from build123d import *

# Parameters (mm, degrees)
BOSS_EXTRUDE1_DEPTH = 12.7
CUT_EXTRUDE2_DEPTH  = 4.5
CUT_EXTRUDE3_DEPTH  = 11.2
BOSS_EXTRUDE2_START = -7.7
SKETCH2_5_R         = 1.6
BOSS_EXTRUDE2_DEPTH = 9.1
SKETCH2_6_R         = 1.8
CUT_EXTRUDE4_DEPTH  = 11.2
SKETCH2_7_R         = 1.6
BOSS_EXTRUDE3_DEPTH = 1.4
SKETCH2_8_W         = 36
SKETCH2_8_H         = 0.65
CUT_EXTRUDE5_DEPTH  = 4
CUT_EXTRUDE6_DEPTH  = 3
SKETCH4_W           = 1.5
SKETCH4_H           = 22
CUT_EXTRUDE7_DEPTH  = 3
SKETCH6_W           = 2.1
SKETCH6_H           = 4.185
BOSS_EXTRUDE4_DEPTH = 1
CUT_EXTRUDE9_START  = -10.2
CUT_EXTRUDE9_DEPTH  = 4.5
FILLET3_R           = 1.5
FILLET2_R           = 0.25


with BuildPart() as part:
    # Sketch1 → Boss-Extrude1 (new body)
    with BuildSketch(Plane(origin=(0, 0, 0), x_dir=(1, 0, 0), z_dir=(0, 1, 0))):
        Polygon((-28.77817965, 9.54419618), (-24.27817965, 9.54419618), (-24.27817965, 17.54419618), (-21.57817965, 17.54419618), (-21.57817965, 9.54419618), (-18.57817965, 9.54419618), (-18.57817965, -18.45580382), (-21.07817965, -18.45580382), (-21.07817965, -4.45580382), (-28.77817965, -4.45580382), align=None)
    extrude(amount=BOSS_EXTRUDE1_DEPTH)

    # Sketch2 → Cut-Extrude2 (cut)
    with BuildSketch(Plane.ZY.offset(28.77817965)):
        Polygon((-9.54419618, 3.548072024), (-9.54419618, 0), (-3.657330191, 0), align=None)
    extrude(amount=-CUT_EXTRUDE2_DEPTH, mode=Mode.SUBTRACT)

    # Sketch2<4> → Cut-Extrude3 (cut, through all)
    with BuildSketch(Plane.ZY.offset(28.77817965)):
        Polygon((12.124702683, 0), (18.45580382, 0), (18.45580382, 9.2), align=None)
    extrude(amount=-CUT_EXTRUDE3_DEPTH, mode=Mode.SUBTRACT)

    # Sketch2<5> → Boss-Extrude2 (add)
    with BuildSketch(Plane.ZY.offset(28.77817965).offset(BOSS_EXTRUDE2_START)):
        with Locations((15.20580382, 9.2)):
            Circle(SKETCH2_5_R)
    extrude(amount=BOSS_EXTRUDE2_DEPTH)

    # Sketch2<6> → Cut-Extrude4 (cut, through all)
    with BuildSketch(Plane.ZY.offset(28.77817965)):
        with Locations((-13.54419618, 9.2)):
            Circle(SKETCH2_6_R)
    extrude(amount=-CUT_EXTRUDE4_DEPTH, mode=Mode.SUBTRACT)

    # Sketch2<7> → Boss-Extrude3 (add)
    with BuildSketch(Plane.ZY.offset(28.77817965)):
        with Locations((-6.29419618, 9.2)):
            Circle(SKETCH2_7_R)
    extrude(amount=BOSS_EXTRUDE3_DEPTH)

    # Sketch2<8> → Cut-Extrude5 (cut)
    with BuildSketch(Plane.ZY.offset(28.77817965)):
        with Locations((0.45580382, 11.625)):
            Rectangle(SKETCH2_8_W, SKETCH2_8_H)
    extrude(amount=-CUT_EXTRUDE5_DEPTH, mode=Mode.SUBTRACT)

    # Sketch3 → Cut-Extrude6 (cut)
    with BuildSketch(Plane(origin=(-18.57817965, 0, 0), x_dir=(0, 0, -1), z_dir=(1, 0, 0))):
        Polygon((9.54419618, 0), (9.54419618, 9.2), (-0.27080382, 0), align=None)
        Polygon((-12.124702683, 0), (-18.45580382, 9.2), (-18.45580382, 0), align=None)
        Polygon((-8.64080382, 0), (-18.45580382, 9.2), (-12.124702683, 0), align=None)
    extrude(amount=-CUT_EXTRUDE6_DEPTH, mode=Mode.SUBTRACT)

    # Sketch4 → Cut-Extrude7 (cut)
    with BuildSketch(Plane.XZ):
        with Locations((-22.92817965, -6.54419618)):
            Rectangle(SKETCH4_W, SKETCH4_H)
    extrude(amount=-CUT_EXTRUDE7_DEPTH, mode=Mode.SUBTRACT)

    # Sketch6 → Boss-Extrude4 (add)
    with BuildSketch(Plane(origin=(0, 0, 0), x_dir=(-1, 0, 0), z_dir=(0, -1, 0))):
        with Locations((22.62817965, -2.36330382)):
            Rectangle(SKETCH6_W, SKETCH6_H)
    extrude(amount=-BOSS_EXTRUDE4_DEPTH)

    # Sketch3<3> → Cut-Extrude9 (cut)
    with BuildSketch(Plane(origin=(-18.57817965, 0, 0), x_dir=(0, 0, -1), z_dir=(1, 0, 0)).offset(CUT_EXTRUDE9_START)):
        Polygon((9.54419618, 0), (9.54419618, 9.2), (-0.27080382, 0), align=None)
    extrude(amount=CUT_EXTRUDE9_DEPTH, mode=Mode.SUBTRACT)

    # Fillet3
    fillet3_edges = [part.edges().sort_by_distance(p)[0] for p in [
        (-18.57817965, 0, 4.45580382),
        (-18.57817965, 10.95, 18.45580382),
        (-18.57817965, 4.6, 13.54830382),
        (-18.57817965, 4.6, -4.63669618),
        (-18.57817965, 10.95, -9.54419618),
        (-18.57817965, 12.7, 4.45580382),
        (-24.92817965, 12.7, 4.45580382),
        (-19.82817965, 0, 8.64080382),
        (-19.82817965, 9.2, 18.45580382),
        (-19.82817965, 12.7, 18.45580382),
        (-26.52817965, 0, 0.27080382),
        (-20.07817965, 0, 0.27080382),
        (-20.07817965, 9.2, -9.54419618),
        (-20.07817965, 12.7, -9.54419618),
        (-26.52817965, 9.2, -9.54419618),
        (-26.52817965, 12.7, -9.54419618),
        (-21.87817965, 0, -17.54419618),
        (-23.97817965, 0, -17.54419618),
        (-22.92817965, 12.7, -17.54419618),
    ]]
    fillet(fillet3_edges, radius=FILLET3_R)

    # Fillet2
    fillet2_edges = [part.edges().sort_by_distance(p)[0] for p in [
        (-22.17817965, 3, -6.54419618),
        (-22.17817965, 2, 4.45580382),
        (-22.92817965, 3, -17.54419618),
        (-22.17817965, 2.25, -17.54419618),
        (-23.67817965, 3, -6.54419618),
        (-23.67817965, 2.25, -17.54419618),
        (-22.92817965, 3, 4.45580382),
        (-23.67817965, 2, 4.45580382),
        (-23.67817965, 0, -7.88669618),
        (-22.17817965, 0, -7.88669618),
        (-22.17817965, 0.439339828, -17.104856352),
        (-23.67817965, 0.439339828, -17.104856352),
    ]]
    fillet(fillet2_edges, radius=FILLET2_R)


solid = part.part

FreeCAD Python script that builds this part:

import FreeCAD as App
import Part
import Sketcher
from FreeCAD import Vector


def edges_at(feature, points):
    """Names of the edges that pass closest to the given points."""
    edges = feature.Shape.Edges
    near = lambda p: min(range(len(edges)), key=lambda i: edges[i].distToShape(Part.Vertex(*p))[0])
    return sorted({f"Edge{near(p) + 1}" for p in points})

doc = App.newDocument("Part")
body = doc.addObject("PartDesign::Body", "Body")

sketch1 = doc.addObject("Sketcher::SketchObject", "Sketch")
body.addObject(sketch1)
sketch1.AttachmentSupport = (doc.XZ_Plane, [""])
sketch1.MapMode = "FlatFace"
sketch1.addGeometry(Part.LineSegment(Vector(-24.3, -9.5, 0), Vector(-28.8, -9.5, 0)), False)
sketch1.addGeometry(Part.LineSegment(Vector(-28.8, -9.5, 0), Vector(-28.8, 4.5, 0)), False)
sketch1.addGeometry(Part.LineSegment(Vector(-28.8, 4.5, 0), Vector(-21.1, 4.5, 0)), False)
sketch1.addGeometry(Part.LineSegment(Vector(-21.1, 4.5, 0), Vector(-21.1, 18.5, 0)), False)
sketch1.addGeometry(Part.LineSegment(Vector(-21.1, 18.5, 0), Vector(-18.6, 18.5, 0)), False)
sketch1.addGeometry(Part.LineSegment(Vector(-18.6, 18.5, 0), Vector(-18.6, -9.5, 0)), False)
sketch1.addGeometry(Part.LineSegment(Vector(-18.6, -9.5, 0), Vector(-21.6, -9.5, 0)), False)
sketch1.addGeometry(Part.LineSegment(Vector(-21.6, -9.5, 0), Vector(-21.6, -17.5, 0)), False)
sketch1.addGeometry(Part.LineSegment(Vector(-21.6, -17.5, 0), Vector(-24.3, -17.5, 0)), False)
sketch1.addGeometry(Part.LineSegment(Vector(-24.3, -17.5, 0), Vector(-24.3, -9.5, 0)), False)
sketch1.addConstraint(Sketcher.Constraint("Coincident", 0, 2, 1, 1))
sketch1.addConstraint(Sketcher.Constraint("Coincident", 1, 2, 2, 1))
sketch1.addConstraint(Sketcher.Constraint("Coincident", 2, 2, 3, 1))
sketch1.addConstraint(Sketcher.Constraint("Coincident", 3, 2, 4, 1))
sketch1.addConstraint(Sketcher.Constraint("Coincident", 4, 2, 5, 1))
sketch1.addConstraint(Sketcher.Constraint("Coincident", 5, 2, 6, 1))
sketch1.addConstraint(Sketcher.Constraint("Coincident", 6, 2, 7, 1))
sketch1.addConstraint(Sketcher.Constraint("Coincident", 7, 2, 8, 1))
sketch1.addConstraint(Sketcher.Constraint("Coincident", 8, 2, 9, 1))
sketch1.addConstraint(Sketcher.Constraint("Coincident", 9, 2, 0, 1))
sketch1.addConstraint(Sketcher.Constraint("Horizontal", 0))
sketch1.addConstraint(Sketcher.Constraint("Vertical", 1))
sketch1.addConstraint(Sketcher.Constraint("Horizontal", 2))
sketch1.addConstraint(Sketcher.Constraint("Vertical", 3))
sketch1.addConstraint(Sketcher.Constraint("Horizontal", 4))
sketch1.addConstraint(Sketcher.Constraint("Vertical", 5))
sketch1.addConstraint(Sketcher.Constraint("Horizontal", 6))
sketch1.addConstraint(Sketcher.Constraint("Vertical", 7))
sketch1.addConstraint(Sketcher.Constraint("Horizontal", 8))
sketch1.addConstraint(Sketcher.Constraint("Vertical", 9))
sketch1.addConstraint(Sketcher.Constraint("Horizontal", 0, 2, 5, 2))
sketch1.addConstraint(Sketcher.Constraint("Equal", 1, 3))
sketch1.addConstraint(Sketcher.Constraint("DistanceX", 6, 2, 6, 1, 3.0))
sketch1.addConstraint(Sketcher.Constraint("DistanceY", 1, 1, 1, 2, 14.0))
sketch1.addConstraint(Sketcher.Constraint("DistanceY", 7, 2, 7, 1, 8.0))
sketch1.addConstraint(Sketcher.Constraint("DistanceX", 0, 2, 0, 1, 4.5))
sketch1.addConstraint(Sketcher.Constraint("DistanceX", 2, 1, 2, 2, 7.7))
sketch1.addConstraint(Sketcher.Constraint("DistanceX", 4, 1, 4, 2, 2.5))
sketch1.addConstraint(Sketcher.Constraint("DistanceX", 0, 2, -1, 1, 28.77818))
sketch1.addConstraint(Sketcher.Constraint("DistanceY", 0, 2, -1, 1, 9.544196))
pad1 = doc.addObject("PartDesign::Pad", "Pad")
body.addObject(pad1)
pad1.Profile = sketch1
pad1.Length = 12.7
pad1.Reversed = True

sketch2 = doc.addObject("Sketcher::SketchObject", "Sketch001")
body.addObject(sketch2)
sketch2.AttachmentSupport = (doc.YZ_Plane, [""])
sketch2.MapMode = "FlatFace"
sketch2.AttachmentOffset = App.Placement(Vector(0, 0, -28.77818), App.Rotation())
sketch2.addGeometry(Part.LineSegment(Vector(3.5, -9.5, 0), Vector(0, -9.5, 0)), False)
sketch2.addGeometry(Part.LineSegment(Vector(0, -9.5, 0), Vector(0, -3.7, 0)), False)
sketch2.addGeometry(Part.LineSegment(Vector(0, -3.7, 0), Vector(3.5, -9.5, 0)), False)
sketch2.addConstraint(Sketcher.Constraint("Coincident", 0, 2, 1, 1))
sketch2.addConstraint(Sketcher.Constraint("Coincident", 1, 2, 2, 1))
sketch2.addConstraint(Sketcher.Constraint("Coincident", 2, 2, 0, 1))
sketch2.addConstraint(Sketcher.Constraint("Horizontal", 0))
sketch2.addConstraint(Sketcher.Constraint("Vertical", 1))
sketch2.addConstraint(Sketcher.Constraint("PointOnObject", 0, 2, -2))
sketch2.addConstraint(Sketcher.Constraint("DistanceX", 0, 2, 0, 1, 3.548072))
sketch2.addConstraint(Sketcher.Constraint("DistanceY", 1, 1, 1, 2, 5.886866))
sketch2.addConstraint(Sketcher.Constraint("DistanceY", 1, 2, -1, 1, 3.65733))
pocket1 = doc.addObject("PartDesign::Pocket", "Pocket")
body.addObject(pocket1)
pocket1.Profile = sketch2
pocket1.Length = 4.5
pocket1.Reversed = True

sketch3 = doc.addObject("Sketcher::SketchObject", "Sketch002")
body.addObject(sketch3)
sketch3.AttachmentSupport = (doc.YZ_Plane, [""])
sketch3.MapMode = "FlatFace"
sketch3.AttachmentOffset = App.Placement(Vector(0, 0, -28.77818), App.Rotation())
sketch3.addGeometry(Part.LineSegment(Vector(0, 12, 0), Vector(0, 18, 0)), False)
sketch3.addGeometry(Part.LineSegment(Vector(0, 18, 0), Vector(9, 18, 0)), False)
sketch3.addGeometry(Part.LineSegment(Vector(9, 18, 0), Vector(0, 12, 0)), False)
sketch3.addConstraint(Sketcher.Constraint("Coincident", 0, 2, 1, 1))
sketch3.addConstraint(Sketcher.Constraint("Coincident", 1, 2, 2, 1))
sketch3.addConstraint(Sketcher.Constraint("Coincident", 2, 2, 0, 1))
sketch3.addConstraint(Sketcher.Constraint("Vertical", 0))
sketch3.addConstraint(Sketcher.Constraint("Horizontal", 1))
sketch3.addConstraint(Sketcher.Constraint("PointOnObject", 0, 2, -2))
sketch3.addConstraint(Sketcher.Constraint("DistanceX", 1, 1, 1, 2, 9.2))
sketch3.addConstraint(Sketcher.Constraint("DistanceY", 0, 1, 0, 2, 6.331101))
sketch3.addConstraint(Sketcher.Constraint("DistanceY", -1, 1, 0, 2, 18.455804))
pocket2 = doc.addObject("PartDesign::Pocket", "Pocket001")
body.addObject(pocket2)
pocket2.Profile = sketch3
pocket2.Type = "ThroughAll"
pocket2.Reversed = True

sketch4 = doc.addObject("Sketcher::SketchObject", "Sketch003")
body.addObject(sketch4)
sketch4.AttachmentSupport = (doc.YZ_Plane, [""])
sketch4.MapMode = "FlatFace"
sketch4.AttachmentOffset = App.Placement(Vector(0, 0, -21.07818), App.Rotation())
sketch4.addGeometry(Part.Circle(Vector(9.2, 15.2, 0), Vector(0, 0, 1), 1.6), False)
sketch4.addConstraint(Sketcher.Constraint("Diameter", 0, 3.2))
sketch4.addConstraint(Sketcher.Constraint("DistanceX", -1, 1, 0, 3, 9.2))
sketch4.addConstraint(Sketcher.Constraint("DistanceY", -1, 1, 0, 3, 15.205804))
pad2 = doc.addObject("PartDesign::Pad", "Pad001")
body.addObject(pad2)
pad2.Profile = sketch4
pad2.Length = 9.1
pad2.Reversed = True

sketch5 = doc.addObject("Sketcher::SketchObject", "Sketch004")
body.addObject(sketch5)
sketch5.AttachmentSupport = (doc.YZ_Plane, [""])
sketch5.MapMode = "FlatFace"
sketch5.AttachmentOffset = App.Placement(Vector(0, 0, -28.77818), App.Rotation())
sketch5.addGeometry(Part.Circle(Vector(9.2, -13.5, 0), Vector(0, 0, 1), 1.8), False)
sketch5.addConstraint(Sketcher.Constraint("Diameter", 0, 3.6))
sketch5.addConstraint(Sketcher.Constraint("DistanceX", -1, 1, 0, 3, 9.2))
sketch5.addConstraint(Sketcher.Constraint("DistanceY", 0, 3, -1, 1, 13.544196))
pocket3 = doc.addObject("PartDesign::Pocket", "Pocket002")
body.addObject(pocket3)
pocket3.Profile = sketch5
pocket3.Type = "ThroughAll"
pocket3.Reversed = True

sketch6 = doc.addObject("Sketcher::SketchObject", "Sketch005")
body.addObject(sketch6)
sketch6.AttachmentSupport = (doc.YZ_Plane, [""])
sketch6.MapMode = "FlatFace"
sketch6.AttachmentOffset = App.Placement(Vector(0, 0, -28.77818), App.Rotation())
sketch6.addGeometry(Part.Circle(Vector(9.2, -6.3, 0), Vector(0, 0, 1), 1.6), False)
sketch6.addConstraint(Sketcher.Constraint("Diameter", 0, 3.2))
sketch6.addConstraint(Sketcher.Constraint("DistanceX", -1, 1, 0, 3, 9.2))
sketch6.addConstraint(Sketcher.Constraint("DistanceY", 0, 3, -1, 1, 6.294196))
pad3 = doc.addObject("PartDesign::Pad", "Pad002")
body.addObject(pad3)
pad3.Profile = sketch6
pad3.Length = 1.4
pad3.Reversed = True

sketch7 = doc.addObject("Sketcher::SketchObject", "Sketch006")
body.addObject(sketch7)
sketch7.AttachmentSupport = (doc.YZ_Plane, [""])
sketch7.MapMode = "FlatFace"
sketch7.AttachmentOffset = App.Placement(Vector(0, 0, -28.77818), App.Rotation())
sketch7.addGeometry(Part.LineSegment(Vector(11.9, -17.5, 0), Vector(11.3, -17.5, 0)), False)
sketch7.addGeometry(Part.LineSegment(Vector(11.3, -17.5, 0), Vector(11.3, 18.5, 0)), False)
sketch7.addGeometry(Part.LineSegment(Vector(11.3, 18.5, 0), Vector(11.9, 18.5, 0)), False)
sketch7.addGeometry(Part.LineSegment(Vector(11.9, 18.5, 0), Vector(11.9, -17.5, 0)), False)
sketch7.addConstraint(Sketcher.Constraint("Coincident", 0, 2, 1, 1))
sketch7.addConstraint(Sketcher.Constraint("Coincident", 1, 2, 2, 1))
sketch7.addConstraint(Sketcher.Constraint("Coincident", 2, 2, 3, 1))
sketch7.addConstraint(Sketcher.Constraint("Coincident", 3, 2, 0, 1))
sketch7.addConstraint(Sketcher.Constraint("Horizontal", 0))
sketch7.addConstraint(Sketcher.Constraint("Vertical", 1))
sketch7.addConstraint(Sketcher.Constraint("Horizontal", 2))
sketch7.addConstraint(Sketcher.Constraint("Vertical", 3))
sketch7.addConstraint(Sketcher.Constraint("DistanceY", 1, 1, 1, 2, 36.0))
sketch7.addConstraint(Sketcher.Constraint("DistanceX", 0, 2, 0, 1, 0.65))
sketch7.addConstraint(Sketcher.Constraint("DistanceX", -1, 1, 0, 2, 11.3))
sketch7.addConstraint(Sketcher.Constraint("DistanceY", 0, 2, -1, 1, 17.544196))
pocket4 = doc.addObject("PartDesign::Pocket", "Pocket003")
body.addObject(pocket4)
pocket4.Profile = sketch7
pocket4.Length = 4
pocket4.Reversed = True

sketch8 = doc.addObject("Sketcher::SketchObject", "Sketch007")
body.addObject(sketch8)
sketch8.AttachmentSupport = (doc.YZ_Plane, [""])
sketch8.MapMode = "FlatFace"
sketch8.AttachmentOffset = App.Placement(Vector(0, 0, -18.57818), App.Rotation())
sketch8.addGeometry(Part.LineSegment(Vector(0, -10, 0), Vector(9, -10, 0)), False)
sketch8.addGeometry(Part.LineSegment(Vector(9, -10, 0), Vector(0, 0, 0)), False)
sketch8.addGeometry(Part.LineSegment(Vector(0, 0, 0), Vector(0, -10, 0)), False)
sketch8.addGeometry(Part.LineSegment(Vector(9, 18, 0), Vector(0, 18, 0)), False)
sketch8.addGeometry(Part.LineSegment(Vector(0, 18, 0), Vector(0, 9, 0)), False)
sketch8.addGeometry(Part.LineSegment(Vector(0, 9, 0), Vector(9, 18, 0)), False)
sketch8.addConstraint(Sketcher.Constraint("Coincident", 0, 2, 1, 1))
sketch8.addConstraint(Sketcher.Constraint("Coincident", 1, 2, 2, 1))
sketch8.addConstraint(Sketcher.Constraint("Coincident", 2, 2, 0, 1))
sketch8.addConstraint(Sketcher.Constraint("Coincident", 3, 2, 4, 1))
sketch8.addConstraint(Sketcher.Constraint("Coincident", 4, 2, 5, 1))
sketch8.addConstraint(Sketcher.Constraint("Coincident", 5, 2, 3, 1))
sketch8.addConstraint(Sketcher.Constraint("Horizontal", 0))
sketch8.addConstraint(Sketcher.Constraint("Vertical", 2))
sketch8.addConstraint(Sketcher.Constraint("Horizontal", 3))
sketch8.addConstraint(Sketcher.Constraint("Vertical", 4))
sketch8.addConstraint(Sketcher.Constraint("PointOnObject", 1, 2, -2))
sketch8.addConstraint(Sketcher.Constraint("PointOnObject", 3, 2, -2))
sketch8.addConstraint(Sketcher.Constraint("Vertical", 0, 2, 5, 2))
sketch8.addConstraint(Sketcher.Constraint("Equal", 2, 4))
sketch8.addConstraint(Sketcher.Constraint("DistanceX", 0, 1, 0, 2, 9.2))
sketch8.addConstraint(Sketcher.Constraint("DistanceY", 2, 2, 3, 2, 28.0))
sketch8.addConstraint(Sketcher.Constraint("DistanceY", 2, 2, 2, 1, 9.815))
sketch8.addConstraint(Sketcher.Constraint("DistanceY", 0, 2, -1, 1, 9.544196))
pocket5 = doc.addObject("PartDesign::Pocket", "Pocket004")
body.addObject(pocket5)
pocket5.Profile = sketch8
pocket5.Length = 3

sketch9 = doc.addObject("Sketcher::SketchObject", "Sketch008")
body.addObject(sketch9)
sketch9.AttachmentSupport = (doc.XZ_Plane, [""])
sketch9.MapMode = "FlatFace"
sketch9.addGeometry(Part.LineSegment(Vector(-23.7, 4.5, 0), Vector(-23.7, -17.5, 0)), False)
sketch9.addGeometry(Part.LineSegment(Vector(-23.7, -17.5, 0), Vector(-22.2, -17.5, 0)), False)
sketch9.addGeometry(Part.LineSegment(Vector(-22.2, -17.5, 0), Vector(-22.2, 4.5, 0)), False)
sketch9.addGeometry(Part.LineSegment(Vector(-22.2, 4.5, 0), Vector(-23.7, 4.5, 0)), False)
sketch9.addConstraint(Sketcher.Constraint("Coincident", 0, 2, 1, 1))
sketch9.addConstraint(Sketcher.Constraint("Coincident", 1, 2, 2, 1))
sketch9.addConstraint(Sketcher.Constraint("Coincident", 2, 2, 3, 1))
sketch9.addConstraint(Sketcher.Constraint("Coincident", 3, 2, 0, 1))
sketch9.addConstraint(Sketcher.Constraint("Vertical", 0))
sketch9.addConstraint(Sketcher.Constraint("Horizontal", 1))
sketch9.addConstraint(Sketcher.Constraint("Vertical", 2))
sketch9.addConstraint(Sketcher.Constraint("Horizontal", 3))
sketch9.addConstraint(Sketcher.Constraint("DistanceY", 0, 2, 0, 1, 22.0))
sketch9.addConstraint(Sketcher.Constraint("DistanceX", 1, 1, 1, 2, 1.5))
sketch9.addConstraint(Sketcher.Constraint("DistanceX", 0, 2, -1, 1, 23.67818))
sketch9.addConstraint(Sketcher.Constraint("DistanceY", 0, 2, -1, 1, 17.544196))
pocket6 = doc.addObject("PartDesign::Pocket", "Pocket005")
body.addObject(pocket6)
pocket6.Profile = sketch9
pocket6.Length = 3

sketch10 = doc.addObject("Sketcher::SketchObject", "Sketch009")
body.addObject(sketch10)
sketch10.AttachmentSupport = (doc.XZ_Plane, [""])
sketch10.MapMode = "FlatFace"
sketch10.addGeometry(Part.LineSegment(Vector(-21.6, 0.3, 0), Vector(-21.6, 4.5, 0)), False)
sketch10.addGeometry(Part.LineSegment(Vector(-21.6, 4.5, 0), Vector(-23.7, 4.5, 0)), False)
sketch10.addGeometry(Part.LineSegment(Vector(-23.7, 4.5, 0), Vector(-23.7, 0.3, 0)), False)
sketch10.addGeometry(Part.LineSegment(Vector(-23.7, 0.3, 0), Vector(-21.6, 0.3, 0)), False)
sketch10.addConstraint(Sketcher.Constraint("Coincident", 0, 2, 1, 1))
sketch10.addConstraint(Sketcher.Constraint("Coincident", 1, 2, 2, 1))
sketch10.addConstraint(Sketcher.Constraint("Coincident", 2, 2, 3, 1))
sketch10.addConstraint(Sketcher.Constraint("Coincident", 3, 2, 0, 1))
sketch10.addConstraint(Sketcher.Constraint("Vertical", 0))
sketch10.addConstraint(Sketcher.Constraint("Horizontal", 1))
sketch10.addConstraint(Sketcher.Constraint("Vertical", 2))
sketch10.addConstraint(Sketcher.Constraint("Horizontal", 3))
sketch10.addConstraint(Sketcher.Constraint("DistanceX", 1, 2, 1, 1, 2.1))
sketch10.addConstraint(Sketcher.Constraint("DistanceY", 0, 1, 0, 2, 4.185))
sketch10.addConstraint(Sketcher.Constraint("DistanceX", 0, 2, -1, 1, 21.57818))
sketch10.addConstraint(Sketcher.Constraint("DistanceY", -1, 1, 0, 2, 4.455804))
pad4 = doc.addObject("PartDesign::Pad", "Pad003")
body.addObject(pad4)
pad4.Profile = sketch10
pad4.Length = 1
pad4.Reversed = True

sketch11 = doc.addObject("Sketcher::SketchObject", "Sketch010")
body.addObject(sketch11)
sketch11.AttachmentSupport = (doc.YZ_Plane, [""])
sketch11.MapMode = "FlatFace"
sketch11.AttachmentOffset = App.Placement(Vector(0, 0, -28.77818), App.Rotation())
sketch11.addGeometry(Part.LineSegment(Vector(0, -10, 0), Vector(9, -10, 0)), False)
sketch11.addGeometry(Part.LineSegment(Vector(9, -10, 0), Vector(0, 0, 0)), False)
sketch11.addGeometry(Part.LineSegment(Vector(0, 0, 0), Vector(0, -10, 0)), False)
sketch11.addConstraint(Sketcher.Constraint("Coincident", 0, 2, 1, 1))
sketch11.addConstraint(Sketcher.Constraint("Coincident", 1, 2, 2, 1))
sketch11.addConstraint(Sketcher.Constraint("Coincident", 2, 2, 0, 1))
sketch11.addConstraint(Sketcher.Constraint("Horizontal", 0))
sketch11.addConstraint(Sketcher.Constraint("Vertical", 2))
sketch11.addConstraint(Sketcher.Constraint("PointOnObject", 1, 2, -2))
sketch11.addConstraint(Sketcher.Constraint("DistanceX", 0, 1, 0, 2, 9.2))
sketch11.addConstraint(Sketcher.Constraint("DistanceY", 2, 2, 2, 1, 9.815))
sketch11.addConstraint(Sketcher.Constraint("DistanceY", 0, 2, -1, 1, 9.544196))
pocket7 = doc.addObject("PartDesign::Pocket", "Pocket006")
body.addObject(pocket7)
pocket7.Profile = sketch11
pocket7.Length = 4.5
pocket7.Reversed = True
doc.recompute()

fillet = doc.addObject("PartDesign::Fillet", "Fillet")
body.addObject(fillet)
fillet.Base = (pocket7, edges_at(pocket7, [
    (-18.578, 0, 4.456),
    (-18.578, 10.95, 18.456),
    (-18.578, 4.6, 13.548),
    (-18.578, 4.6, -4.637),
    (-18.578, 10.95, -9.544),
    (-18.578, 12.7, 4.456),
    (-24.928, 12.7, 4.456),
    (-19.828, 0, 8.641),
    (-19.828, 9.2, 18.456),
    (-19.828, 12.7, 18.456),
    (-26.528, 0, 0.271),
    (-20.078, 0, 0.271),
    (-20.078, 9.2, -9.544),
    (-20.078, 12.7, -9.544),
    (-26.528, 9.2, -9.544),
    (-26.528, 12.7, -9.544),
    (-21.878, 0, -17.544),
    (-23.978, 0, -17.544),
    (-22.928, 12.7, -17.544),
]))
fillet.Radius = 1.5
doc.recompute()

fillet2 = doc.addObject("PartDesign::Fillet", "Fillet001")
body.addObject(fillet2)
fillet2.Base = (fillet, edges_at(fillet, [
    (-22.178, 3, -6.544),
    (-22.178, 2, 4.456),
    (-22.928, 3, -17.544),
    (-22.178, 2.25, -17.544),
    (-23.678, 3, -6.544),
    (-23.678, 2.25, -17.544),
    (-22.928, 3, 4.456),
    (-23.678, 2, 4.456),
    (-23.678, 0, -7.887),
    (-22.178, 0, -7.887),
    (-22.178, 0.439, -17.105),
    (-23.678, 0.439, -17.105),
]))
fillet2.Radius = 0.25

doc.recompute()
